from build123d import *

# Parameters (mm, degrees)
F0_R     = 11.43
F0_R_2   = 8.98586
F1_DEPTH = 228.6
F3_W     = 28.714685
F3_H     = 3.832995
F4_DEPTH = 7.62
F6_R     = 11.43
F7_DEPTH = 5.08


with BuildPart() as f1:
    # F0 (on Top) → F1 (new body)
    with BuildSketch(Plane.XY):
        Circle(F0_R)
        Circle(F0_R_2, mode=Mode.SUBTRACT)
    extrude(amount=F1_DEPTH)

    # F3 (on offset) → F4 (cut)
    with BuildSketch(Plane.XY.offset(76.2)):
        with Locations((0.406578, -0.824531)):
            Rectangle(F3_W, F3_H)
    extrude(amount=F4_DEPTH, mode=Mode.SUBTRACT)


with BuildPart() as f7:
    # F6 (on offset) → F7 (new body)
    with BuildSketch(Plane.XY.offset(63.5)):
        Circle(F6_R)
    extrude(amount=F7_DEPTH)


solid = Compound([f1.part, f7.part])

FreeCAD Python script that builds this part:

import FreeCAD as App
import Part
import Sketcher
Q = App.Units.Quantity


def add_polygon(sketch, points):
    """Adds a closed chain of lines whose ends are joined by coincident constraints."""
    first, n = sketch.GeometryCount, len(points)
    for a, b in zip(points, points[1:] + points[:1]):
        sketch.addGeometry(Part.LineSegment(App.Vector(*a, 0), App.Vector(*b, 0)), False)
    for i in range(n):
        sketch.addConstraint(Sketcher.Constraint("Coincident", first + i, 2, first + (i + 1) % n, 1))

doc = App.newDocument("Part")
body = doc.addObject("PartDesign::Body", "Body")

# Sketch on XY plane
sketch1 = body.newObject("Sketcher::SketchObject", "Sketch")
sketch1.AttachmentSupport = (doc.getObject("XY_Plane"), [""])
sketch1.MapMode = "FlatFace"
sketch1.addGeometry([
    Part.Circle(App.Vector(0, 0, 0), App.Vector(0, 0, 1), 11),
    Part.Circle(App.Vector(0, 0, 0), App.Vector(0, 0, 1), 9),
], False)
sketch1.addConstraint([
    Sketcher.Constraint("Coincident", 0, 3, -1, 1),
    Sketcher.Constraint("Coincident", 1, 3, -1, 1),
    Sketcher.Constraint("Diameter", 0, Q("0.9 in")),
    Sketcher.Constraint("Diameter", 1, 17.97172),
])
pad1 = body.newObject("PartDesign::Pad", "Pad")
pad1.Profile = sketch1
pad1.Length = Q("9 in")

# Sketch on XY plane
sketch2 = body.newObject("Sketcher::SketchObject", "Sketch001")
sketch2.AttachmentSupport = (doc.getObject("XY_Plane"), [""])
sketch2.MapMode = "FlatFace"
sketch2.AttachmentOffset = App.Placement(App.Vector(0, 0, 3 * 25.4), App.Rotation())
add_polygon(sketch2, [(-14, 1.1), (-14, -2.7), (14.8, -2.7), (14.8, 1.1)])  # lines 0-3
sketch2.addConstraint([
    Sketcher.Constraint("Vertical", 0),
    Sketcher.Constraint("Horizontal", 1),
    Sketcher.Constraint("Vertical", 2),
    Sketcher.Constraint("Horizontal", 3),
    Sketcher.Constraint("DistanceX", 1, 1, 1, 2, 28.714685),
    Sketcher.Constraint("DistanceY", 0, 2, 0, 1, 3.832995),
    Sketcher.Constraint("DistanceY", 0, 2, -1, 1, 2.741029),
    Sketcher.Constraint("DistanceX", -1, 1, 1, 2, 14.76392),
])
pocket1 = body.newObject("PartDesign::Pocket", "Pocket")
pocket1.Profile = sketch2
pocket1.Length = Q("0.3 in")
pocket1.Reversed = True
body2 = doc.addObject("PartDesign::Body", "Body001")

# Sketch on XY plane
sketch3 = body2.newObject("Sketcher::SketchObject", "Sketch002")
sketch3.AttachmentSupport = (doc.getObject("XY_Plane001"), [""])
sketch3.MapMode = "FlatFace"
sketch3.AttachmentOffset = App.Placement(App.Vector(0, 0, 2.5 * 25.4), App.Rotation())
sketch3.addGeometry(Part.Circle(App.Vector(0, 0, 0), App.Vector(0, 0, 1), 11), False)
sketch3.addConstraint([
    Sketcher.Constraint("Coincident", 0, 3, -1, 1),
    Sketcher.Constraint("Diameter", 0, Q("0.9 in")),
])
pad2 = body2.newObject("PartDesign::Pad", "Pad001")
pad2.Profile = sketch3
pad2.Length = Q("0.2 in")

doc.recompute()
